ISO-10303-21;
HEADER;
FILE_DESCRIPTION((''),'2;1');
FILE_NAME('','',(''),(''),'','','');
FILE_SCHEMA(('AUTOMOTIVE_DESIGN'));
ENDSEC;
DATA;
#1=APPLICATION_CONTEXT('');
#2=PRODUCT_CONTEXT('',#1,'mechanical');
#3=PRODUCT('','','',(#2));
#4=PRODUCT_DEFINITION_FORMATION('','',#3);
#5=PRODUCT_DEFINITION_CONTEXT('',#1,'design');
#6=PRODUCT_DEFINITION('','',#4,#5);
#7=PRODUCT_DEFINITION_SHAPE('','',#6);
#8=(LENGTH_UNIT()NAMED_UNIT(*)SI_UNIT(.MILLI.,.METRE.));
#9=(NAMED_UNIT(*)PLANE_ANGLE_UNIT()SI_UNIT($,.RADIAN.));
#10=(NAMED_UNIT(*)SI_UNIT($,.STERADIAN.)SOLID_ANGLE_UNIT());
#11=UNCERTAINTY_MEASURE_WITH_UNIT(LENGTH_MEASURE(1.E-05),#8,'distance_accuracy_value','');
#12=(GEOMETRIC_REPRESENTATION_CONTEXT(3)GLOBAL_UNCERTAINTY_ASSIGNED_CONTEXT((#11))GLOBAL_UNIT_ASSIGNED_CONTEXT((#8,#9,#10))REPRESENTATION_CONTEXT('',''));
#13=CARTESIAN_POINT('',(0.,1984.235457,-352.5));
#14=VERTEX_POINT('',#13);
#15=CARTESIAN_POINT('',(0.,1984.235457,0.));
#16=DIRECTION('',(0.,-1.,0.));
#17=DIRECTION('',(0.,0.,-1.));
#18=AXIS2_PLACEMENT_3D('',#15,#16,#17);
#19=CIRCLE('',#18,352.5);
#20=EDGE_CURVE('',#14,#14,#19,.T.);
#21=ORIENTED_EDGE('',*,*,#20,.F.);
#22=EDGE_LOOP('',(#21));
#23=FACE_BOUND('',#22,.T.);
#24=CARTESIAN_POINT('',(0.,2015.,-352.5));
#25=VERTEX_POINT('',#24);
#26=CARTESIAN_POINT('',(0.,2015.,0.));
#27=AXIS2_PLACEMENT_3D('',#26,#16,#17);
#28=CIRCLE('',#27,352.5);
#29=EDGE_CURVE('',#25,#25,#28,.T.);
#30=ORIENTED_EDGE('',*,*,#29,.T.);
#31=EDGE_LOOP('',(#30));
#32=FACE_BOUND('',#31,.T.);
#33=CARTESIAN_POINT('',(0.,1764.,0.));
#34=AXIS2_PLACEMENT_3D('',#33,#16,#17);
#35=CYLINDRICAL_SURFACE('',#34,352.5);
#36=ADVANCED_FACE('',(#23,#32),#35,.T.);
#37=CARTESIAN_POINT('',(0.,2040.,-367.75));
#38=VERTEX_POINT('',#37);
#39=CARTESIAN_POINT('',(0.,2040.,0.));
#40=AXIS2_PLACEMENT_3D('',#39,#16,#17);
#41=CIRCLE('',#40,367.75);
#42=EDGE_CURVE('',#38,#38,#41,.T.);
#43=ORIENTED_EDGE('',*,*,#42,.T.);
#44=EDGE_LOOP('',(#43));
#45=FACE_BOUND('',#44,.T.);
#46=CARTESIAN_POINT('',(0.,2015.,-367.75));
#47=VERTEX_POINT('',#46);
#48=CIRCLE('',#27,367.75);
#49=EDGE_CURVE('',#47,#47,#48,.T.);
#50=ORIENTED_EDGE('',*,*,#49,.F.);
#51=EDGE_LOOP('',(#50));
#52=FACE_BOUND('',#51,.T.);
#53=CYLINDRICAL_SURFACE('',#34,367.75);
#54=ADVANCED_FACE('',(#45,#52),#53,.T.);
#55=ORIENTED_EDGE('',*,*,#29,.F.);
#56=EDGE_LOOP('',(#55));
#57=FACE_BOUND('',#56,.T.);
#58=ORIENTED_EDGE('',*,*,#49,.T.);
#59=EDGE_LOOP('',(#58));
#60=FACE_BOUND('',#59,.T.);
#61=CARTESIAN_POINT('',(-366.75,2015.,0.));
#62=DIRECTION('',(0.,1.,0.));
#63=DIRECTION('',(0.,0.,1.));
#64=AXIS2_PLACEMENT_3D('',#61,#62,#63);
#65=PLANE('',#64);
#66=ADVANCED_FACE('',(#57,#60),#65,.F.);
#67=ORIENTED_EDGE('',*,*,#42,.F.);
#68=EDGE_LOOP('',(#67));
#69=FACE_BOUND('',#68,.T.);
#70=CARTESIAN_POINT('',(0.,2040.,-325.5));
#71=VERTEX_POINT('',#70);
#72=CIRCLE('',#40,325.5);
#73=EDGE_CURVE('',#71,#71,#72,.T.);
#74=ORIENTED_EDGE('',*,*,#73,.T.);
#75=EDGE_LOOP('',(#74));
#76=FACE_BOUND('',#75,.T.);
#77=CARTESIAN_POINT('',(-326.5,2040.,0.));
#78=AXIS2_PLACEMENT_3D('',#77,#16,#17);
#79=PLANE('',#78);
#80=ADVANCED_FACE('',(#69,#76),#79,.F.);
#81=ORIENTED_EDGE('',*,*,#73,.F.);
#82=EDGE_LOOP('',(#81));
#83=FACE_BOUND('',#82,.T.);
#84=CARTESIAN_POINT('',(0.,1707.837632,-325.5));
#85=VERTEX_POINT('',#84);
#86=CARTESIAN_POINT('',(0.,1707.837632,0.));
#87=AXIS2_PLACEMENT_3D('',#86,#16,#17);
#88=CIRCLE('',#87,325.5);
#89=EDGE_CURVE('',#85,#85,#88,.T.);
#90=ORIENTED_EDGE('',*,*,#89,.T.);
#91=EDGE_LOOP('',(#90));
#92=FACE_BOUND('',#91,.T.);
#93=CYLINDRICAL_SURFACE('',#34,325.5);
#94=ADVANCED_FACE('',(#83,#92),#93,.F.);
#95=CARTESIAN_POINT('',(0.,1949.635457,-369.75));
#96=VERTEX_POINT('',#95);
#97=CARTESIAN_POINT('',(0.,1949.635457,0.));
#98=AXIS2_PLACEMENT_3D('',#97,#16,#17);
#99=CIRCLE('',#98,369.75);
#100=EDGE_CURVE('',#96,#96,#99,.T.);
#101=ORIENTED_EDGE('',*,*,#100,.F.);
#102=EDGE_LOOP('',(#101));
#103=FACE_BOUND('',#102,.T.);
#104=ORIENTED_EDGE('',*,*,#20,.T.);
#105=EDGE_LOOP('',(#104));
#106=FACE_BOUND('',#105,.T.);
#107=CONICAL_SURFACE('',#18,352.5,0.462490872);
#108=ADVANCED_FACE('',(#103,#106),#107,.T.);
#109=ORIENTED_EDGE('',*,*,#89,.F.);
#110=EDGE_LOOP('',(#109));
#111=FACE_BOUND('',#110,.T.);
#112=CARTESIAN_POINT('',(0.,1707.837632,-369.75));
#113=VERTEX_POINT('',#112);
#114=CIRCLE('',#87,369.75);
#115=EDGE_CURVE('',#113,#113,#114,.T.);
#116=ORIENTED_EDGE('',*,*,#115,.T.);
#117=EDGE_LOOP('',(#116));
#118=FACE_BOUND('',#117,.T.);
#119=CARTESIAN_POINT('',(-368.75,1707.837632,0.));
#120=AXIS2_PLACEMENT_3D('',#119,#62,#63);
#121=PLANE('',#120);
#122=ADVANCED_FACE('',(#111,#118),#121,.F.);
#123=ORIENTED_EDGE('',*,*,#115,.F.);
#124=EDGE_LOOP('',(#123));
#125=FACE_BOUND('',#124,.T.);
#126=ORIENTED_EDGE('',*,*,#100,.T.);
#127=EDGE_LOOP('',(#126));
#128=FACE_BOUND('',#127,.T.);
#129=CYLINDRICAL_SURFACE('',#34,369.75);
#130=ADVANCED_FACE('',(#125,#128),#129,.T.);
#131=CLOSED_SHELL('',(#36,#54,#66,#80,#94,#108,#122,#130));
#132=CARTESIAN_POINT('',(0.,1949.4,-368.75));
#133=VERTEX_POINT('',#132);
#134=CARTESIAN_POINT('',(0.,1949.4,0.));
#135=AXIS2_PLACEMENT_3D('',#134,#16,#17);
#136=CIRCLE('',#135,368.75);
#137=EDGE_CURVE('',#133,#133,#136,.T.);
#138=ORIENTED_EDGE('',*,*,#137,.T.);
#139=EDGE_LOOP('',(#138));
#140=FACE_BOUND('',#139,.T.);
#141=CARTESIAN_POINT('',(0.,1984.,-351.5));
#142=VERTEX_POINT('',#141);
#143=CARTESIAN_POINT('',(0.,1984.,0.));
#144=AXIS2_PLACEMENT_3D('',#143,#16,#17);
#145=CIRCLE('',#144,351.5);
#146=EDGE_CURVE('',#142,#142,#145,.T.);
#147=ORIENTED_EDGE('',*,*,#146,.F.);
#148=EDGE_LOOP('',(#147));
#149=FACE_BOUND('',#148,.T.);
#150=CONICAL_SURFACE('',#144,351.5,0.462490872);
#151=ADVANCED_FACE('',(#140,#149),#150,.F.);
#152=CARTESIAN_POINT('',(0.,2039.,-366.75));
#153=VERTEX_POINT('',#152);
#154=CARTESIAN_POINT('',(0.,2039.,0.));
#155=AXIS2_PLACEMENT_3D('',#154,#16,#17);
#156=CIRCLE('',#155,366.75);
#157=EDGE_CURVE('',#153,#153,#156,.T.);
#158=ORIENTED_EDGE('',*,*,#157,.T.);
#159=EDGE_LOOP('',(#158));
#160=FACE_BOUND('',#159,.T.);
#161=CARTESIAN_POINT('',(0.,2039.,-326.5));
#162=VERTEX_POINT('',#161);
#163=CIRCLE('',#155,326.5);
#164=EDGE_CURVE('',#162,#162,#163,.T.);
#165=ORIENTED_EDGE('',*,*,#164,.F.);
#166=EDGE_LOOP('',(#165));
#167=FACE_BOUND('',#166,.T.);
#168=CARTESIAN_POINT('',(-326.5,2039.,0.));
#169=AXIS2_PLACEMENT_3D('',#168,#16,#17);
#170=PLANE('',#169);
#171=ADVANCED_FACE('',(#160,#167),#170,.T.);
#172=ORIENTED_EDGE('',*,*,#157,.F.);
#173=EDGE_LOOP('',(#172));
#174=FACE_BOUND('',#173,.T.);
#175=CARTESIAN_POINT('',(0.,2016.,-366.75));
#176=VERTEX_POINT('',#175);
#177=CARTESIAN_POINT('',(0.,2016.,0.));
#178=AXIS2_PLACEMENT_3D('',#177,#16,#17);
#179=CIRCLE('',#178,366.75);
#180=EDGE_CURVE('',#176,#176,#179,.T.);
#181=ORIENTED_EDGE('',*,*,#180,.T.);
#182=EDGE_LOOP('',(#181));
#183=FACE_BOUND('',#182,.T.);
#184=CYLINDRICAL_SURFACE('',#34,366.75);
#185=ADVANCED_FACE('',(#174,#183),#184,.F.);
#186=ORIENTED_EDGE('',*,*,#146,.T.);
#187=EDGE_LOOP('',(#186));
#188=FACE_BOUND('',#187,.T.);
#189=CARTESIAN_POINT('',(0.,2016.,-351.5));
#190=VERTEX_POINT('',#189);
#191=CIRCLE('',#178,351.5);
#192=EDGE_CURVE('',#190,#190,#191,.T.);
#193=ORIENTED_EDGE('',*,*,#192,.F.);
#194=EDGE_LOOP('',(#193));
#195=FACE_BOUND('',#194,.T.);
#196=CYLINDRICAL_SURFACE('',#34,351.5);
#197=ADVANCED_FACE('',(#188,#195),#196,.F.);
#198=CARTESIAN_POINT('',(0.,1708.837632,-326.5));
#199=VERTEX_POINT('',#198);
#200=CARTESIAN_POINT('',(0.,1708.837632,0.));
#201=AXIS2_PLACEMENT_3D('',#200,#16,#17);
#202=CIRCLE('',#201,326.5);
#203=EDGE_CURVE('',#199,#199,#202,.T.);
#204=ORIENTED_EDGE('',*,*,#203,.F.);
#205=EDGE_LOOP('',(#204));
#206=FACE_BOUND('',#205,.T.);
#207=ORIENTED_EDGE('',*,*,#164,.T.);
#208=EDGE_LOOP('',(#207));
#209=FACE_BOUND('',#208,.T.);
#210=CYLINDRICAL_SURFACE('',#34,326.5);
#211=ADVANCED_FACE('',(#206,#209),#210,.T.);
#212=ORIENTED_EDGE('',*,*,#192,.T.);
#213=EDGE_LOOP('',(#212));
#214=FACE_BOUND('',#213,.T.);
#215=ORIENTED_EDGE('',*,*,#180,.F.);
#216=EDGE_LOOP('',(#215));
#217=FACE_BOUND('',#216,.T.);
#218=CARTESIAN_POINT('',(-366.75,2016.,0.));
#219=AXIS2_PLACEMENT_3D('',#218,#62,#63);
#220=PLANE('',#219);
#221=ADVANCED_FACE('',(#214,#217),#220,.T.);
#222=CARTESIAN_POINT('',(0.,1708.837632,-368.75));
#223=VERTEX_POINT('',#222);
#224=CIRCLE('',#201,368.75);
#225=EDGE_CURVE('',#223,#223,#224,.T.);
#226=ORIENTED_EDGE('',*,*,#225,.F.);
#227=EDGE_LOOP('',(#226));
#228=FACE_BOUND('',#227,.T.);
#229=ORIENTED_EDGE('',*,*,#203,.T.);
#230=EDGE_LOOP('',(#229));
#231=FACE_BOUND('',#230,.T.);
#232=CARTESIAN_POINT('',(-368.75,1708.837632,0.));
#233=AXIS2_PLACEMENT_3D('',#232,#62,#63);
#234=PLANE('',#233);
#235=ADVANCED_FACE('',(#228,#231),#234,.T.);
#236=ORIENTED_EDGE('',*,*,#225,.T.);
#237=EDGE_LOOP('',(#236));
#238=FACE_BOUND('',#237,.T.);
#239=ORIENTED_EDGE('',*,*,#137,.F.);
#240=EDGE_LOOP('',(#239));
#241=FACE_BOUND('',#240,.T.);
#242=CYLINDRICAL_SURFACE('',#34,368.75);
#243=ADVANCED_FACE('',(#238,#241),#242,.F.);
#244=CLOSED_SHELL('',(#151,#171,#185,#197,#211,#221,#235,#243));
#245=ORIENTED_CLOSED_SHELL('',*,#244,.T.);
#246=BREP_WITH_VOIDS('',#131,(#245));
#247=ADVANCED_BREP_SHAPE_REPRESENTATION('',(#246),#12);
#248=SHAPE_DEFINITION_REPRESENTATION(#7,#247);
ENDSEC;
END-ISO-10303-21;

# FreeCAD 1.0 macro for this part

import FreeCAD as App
import Part
import Sketcher
Q = App.Units.Quantity


def add_polygon(sketch, points):
    """Adds a closed chain of lines whose ends are joined by coincident constraints."""
    first, n = sketch.GeometryCount, len(points)
    for a, b in zip(points, points[1:] + points[:1]):
        sketch.addGeometry(Part.LineSegment(App.Vector(*a, 0), App.Vector(*b, 0)), False)
    for i in range(n):
        sketch.addConstraint(Sketcher.Constraint("Coincident", first + i, 2, first + (i + 1) % n, 1))

doc = App.newDocument("Part")
params = doc.addObject("Spreadsheet::Sheet", "Params")
for row, (alias, value) in enumerate([
    ("sketch1_height", "25 mm"),
    ("sketch1_height2", "23 mm"),
    ("sketch1_height3", "32 mm"),
    ("sketch1_width", "42.25 mm"),
    ("revolution_angle", "360 deg"),
], start=1):
    params.set(f"A{row}", alias)
    params.set(f"B{row}", "=" + value)
    params.setAlias(f"B{row}", alias)

body = doc.addObject("PartDesign::Body", "Body")

# Sketch on XY plane
sketch1 = body.newObject("Sketcher::SketchObject", "Sketch")
sketch1.AttachmentSupport = (doc.getObject("XY_Plane"), [""])
sketch1.MapMode = "FlatFace"
add_polygon(sketch1, [(-326, 1708), (-326, 2040), (-368, 2040), (-368, 2015), (-352, 2015), (-352, 1984), (-370, 1950), (-370, 1708)])  # lines 0-7
add_polygon(sketch1, [(-367, 2016), (-367, 2039), (-326, 2039), (-326, 1709), (-369, 1709), (-369, 1949), (-352, 1984), (-352, 2016)])  # lines 8-15
sketch1.addConstraint([
    Sketcher.Constraint("Vertical", 0),
    Sketcher.Constraint("Horizontal", 1),
    Sketcher.Constraint("Vertical", 2),
    Sketcher.Constraint("Horizontal", 3),
    Sketcher.Constraint("Vertical", 4),
    Sketcher.Constraint("Vertical", 6),
    Sketcher.Constraint("Horizontal", 7),
    Sketcher.Constraint("Vertical", 8),
    Sketcher.Constraint("Horizontal", 9),
    Sketcher.Constraint("Vertical", 10),
    Sketcher.Constraint("Horizontal", 11),
    Sketcher.Constraint("Vertical", 12),
    Sketcher.Constraint("Vertical", 14),
    Sketcher.Constraint("Horizontal", 15),
    Sketcher.Constraint("Parallel", 5, 13),
    Sketcher.Constraint("Equal", 1, 11),
    Sketcher.Constraint("Equal", 3, 15),
    Sketcher.Constraint("Equal", 5, 13),
    Sketcher.Constraint("DistanceY", 2, 2, 2, 1, Q("25 mm")),
    Sketcher.Constraint("DistanceY", 8, 1, 8, 2, Q("23 mm")),
    Sketcher.Constraint("DistanceY", 14, 1, 14, 2, Q("32 mm")),
    Sketcher.Constraint("DistanceY", -1, 1, 0, 2, Q("2040 mm")),
    Sketcher.Constraint("DistanceY", -1, 1, 8, 2, Q("2039 mm")),
    Sketcher.Constraint("DistanceX", 3, 2, 0, 2, Q("27 mm")),
    Sketcher.Constraint("DistanceX", 5, 2, 2, 2, Q("2 mm")),
    Sketcher.Constraint("DistanceX", 1, 2, 8, 2, Q("1 mm")),
    Sketcher.Constraint("DistanceY", 7, 2, 10, 2, Q("1 mm")),
    Sketcher.Constraint("DistanceX", 1, 2, 1, 1, Q("42.25 mm")),
    Sketcher.Constraint("DistanceX", 0, 2, -1, 1, Q("325.5 mm")),
    Sketcher.Constraint("DistanceY", -1, 1, 12, 2, Q("1949.4 mm")),
    Sketcher.Constraint("DistanceY", 0, 1, 0, 2, Q("332.162368 mm")),
    Sketcher.Constraint("DistanceY", 4, 2, 4, 1, Q("30.764543 mm")),
])
sketch1.setExpression("Constraints[34]", "Params.sketch1_height")
sketch1.setExpression("Constraints[35]", "Params.sketch1_height2")
sketch1.setExpression("Constraints[36]", "Params.sketch1_height3")
sketch1.setExpression("Constraints[43]", "Params.sketch1_width")
revolution = body.newObject("PartDesign::Revolution", "Revolution")
revolution.Profile = sketch1
revolution.ReferenceAxis = (sketch1, ["V_Axis"])
revolution.setExpression("Angle", "Params.revolution_angle")

doc.recompute()
